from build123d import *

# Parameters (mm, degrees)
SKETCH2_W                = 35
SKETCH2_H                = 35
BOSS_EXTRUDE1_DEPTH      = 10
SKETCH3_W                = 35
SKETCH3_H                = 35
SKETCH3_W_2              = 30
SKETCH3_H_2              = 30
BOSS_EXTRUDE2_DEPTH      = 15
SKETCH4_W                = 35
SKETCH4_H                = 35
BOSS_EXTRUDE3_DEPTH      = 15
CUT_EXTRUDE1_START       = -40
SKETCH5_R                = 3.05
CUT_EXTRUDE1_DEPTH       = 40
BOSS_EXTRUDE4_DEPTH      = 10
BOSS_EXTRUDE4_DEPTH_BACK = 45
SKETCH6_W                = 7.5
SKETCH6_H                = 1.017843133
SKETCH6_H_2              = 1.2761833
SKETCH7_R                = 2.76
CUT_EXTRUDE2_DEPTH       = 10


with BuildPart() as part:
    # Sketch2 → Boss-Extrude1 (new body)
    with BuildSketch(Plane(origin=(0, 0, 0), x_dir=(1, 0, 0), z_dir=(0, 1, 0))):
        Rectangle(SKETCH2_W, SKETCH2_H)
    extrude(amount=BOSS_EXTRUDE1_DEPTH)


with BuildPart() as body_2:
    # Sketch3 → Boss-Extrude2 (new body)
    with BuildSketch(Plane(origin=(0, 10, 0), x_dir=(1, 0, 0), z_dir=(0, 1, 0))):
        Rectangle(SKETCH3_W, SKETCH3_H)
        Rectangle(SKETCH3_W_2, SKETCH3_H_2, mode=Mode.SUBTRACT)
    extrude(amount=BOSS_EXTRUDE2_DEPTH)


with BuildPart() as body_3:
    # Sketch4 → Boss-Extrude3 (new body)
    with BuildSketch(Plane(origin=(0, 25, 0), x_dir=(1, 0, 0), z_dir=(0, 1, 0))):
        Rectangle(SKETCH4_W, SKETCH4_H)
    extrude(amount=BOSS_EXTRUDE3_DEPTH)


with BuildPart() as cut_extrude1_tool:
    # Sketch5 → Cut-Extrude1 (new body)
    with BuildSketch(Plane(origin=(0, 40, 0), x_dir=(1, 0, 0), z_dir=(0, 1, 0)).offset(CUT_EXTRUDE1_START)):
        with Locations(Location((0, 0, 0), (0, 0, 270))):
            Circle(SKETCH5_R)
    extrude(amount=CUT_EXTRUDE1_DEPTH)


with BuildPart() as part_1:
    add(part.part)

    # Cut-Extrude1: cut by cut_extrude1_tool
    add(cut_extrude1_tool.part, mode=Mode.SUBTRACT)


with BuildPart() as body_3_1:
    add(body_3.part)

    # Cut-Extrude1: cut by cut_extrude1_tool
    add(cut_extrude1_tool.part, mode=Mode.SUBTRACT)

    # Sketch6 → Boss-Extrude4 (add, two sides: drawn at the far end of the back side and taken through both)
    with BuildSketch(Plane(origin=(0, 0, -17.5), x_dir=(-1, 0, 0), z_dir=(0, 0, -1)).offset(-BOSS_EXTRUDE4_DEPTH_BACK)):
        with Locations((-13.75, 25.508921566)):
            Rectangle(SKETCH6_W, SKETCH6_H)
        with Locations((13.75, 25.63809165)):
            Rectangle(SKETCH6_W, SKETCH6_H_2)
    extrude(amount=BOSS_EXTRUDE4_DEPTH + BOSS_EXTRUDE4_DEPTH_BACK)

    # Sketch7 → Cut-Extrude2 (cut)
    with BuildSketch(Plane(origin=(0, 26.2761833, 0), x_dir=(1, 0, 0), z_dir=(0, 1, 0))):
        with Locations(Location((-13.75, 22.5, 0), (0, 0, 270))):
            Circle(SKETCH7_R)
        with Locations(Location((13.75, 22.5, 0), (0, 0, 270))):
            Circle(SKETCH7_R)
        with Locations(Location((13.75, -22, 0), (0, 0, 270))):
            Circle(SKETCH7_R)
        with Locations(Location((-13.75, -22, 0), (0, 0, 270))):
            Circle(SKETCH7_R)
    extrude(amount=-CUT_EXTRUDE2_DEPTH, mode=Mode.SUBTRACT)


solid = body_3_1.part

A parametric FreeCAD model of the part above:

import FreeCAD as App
import Part
import Sketcher
from FreeCAD import Vector


def add_polygon(sketch, points):
    """Adds a closed chain of lines whose ends are joined by coincident constraints."""
    first, n = sketch.GeometryCount, len(points)
    for a, b in zip(points, points[1:] + points[:1]):
        sketch.addGeometry(Part.LineSegment(App.Vector(*a, 0), App.Vector(*b, 0)), False)
    for i in range(n):
        sketch.addConstraint(Sketcher.Constraint("Coincident", first + i, 2, first + (i + 1) % n, 1))

doc = App.newDocument("Part")
body = doc.addObject("PartDesign::Body", "Body")

sketch1 = doc.addObject("Sketcher::SketchObject", "Sketch")
body.addObject(sketch1)
sketch1.AttachmentSupport = (doc.XZ_Plane, [""])
sketch1.MapMode = "FlatFace"
add_polygon(sketch1, [(-17.5, -17.5), (-17.5, 17.5), (17.5, 17.5), (17.5, -17.5)])
sketch1.addConstraint(Sketcher.Constraint("Vertical", 0))
sketch1.addConstraint(Sketcher.Constraint("Horizontal", 1))
sketch1.addConstraint(Sketcher.Constraint("Vertical", 2))
sketch1.addConstraint(Sketcher.Constraint("Horizontal", 3))
sketch1.addConstraint(Sketcher.Constraint("Symmetric", 0, 2, 2, 2, -1, 1))
sketch1.addConstraint(Sketcher.Constraint("Equal", 3, 0))
sketch1.addConstraint(Sketcher.Constraint("DistanceX", 1, 1, 1, 2, 35.0))
pad1 = doc.addObject("PartDesign::Pad", "Pad")
body.addObject(pad1)
pad1.Profile = sketch1
pad1.Length = 10
pad1.Reversed = True
body2 = doc.addObject("PartDesign::Body", "Body001")

sketch2 = doc.addObject("Sketcher::SketchObject", "Sketch001")
body2.addObject(sketch2)
sketch2.AttachmentSupport = (doc.getObject("XZ_Plane001"), [""])
sketch2.MapMode = "FlatFace"
sketch2.AttachmentOffset = App.Placement(Vector(0, 0, -10), App.Rotation())
add_polygon(sketch2, [(-17.5, -17.5), (-17.5, 17.5), (17.5, 17.5), (17.5, -17.5)])
add_polygon(sketch2, [(15, 15), (-15, 15), (-15, -15), (15, -15)])
sketch2.addConstraint(Sketcher.Constraint("Vertical", 0))
sketch2.addConstraint(Sketcher.Constraint("Horizontal", 1))
sketch2.addConstraint(Sketcher.Constraint("Vertical", 2))
sketch2.addConstraint(Sketcher.Constraint("Horizontal", 3))
sketch2.addConstraint(Sketcher.Constraint("Horizontal", 4))
sketch2.addConstraint(Sketcher.Constraint("Vertical", 5))
sketch2.addConstraint(Sketcher.Constraint("Horizontal", 6))
sketch2.addConstraint(Sketcher.Constraint("Vertical", 7))
sketch2.addConstraint(Sketcher.Constraint("Symmetric", 0, 2, 2, 2, -1, 1))
sketch2.addConstraint(Sketcher.Constraint("Symmetric", 4, 2, 6, 2, -1, 1))
sketch2.addConstraint(Sketcher.Constraint("Equal", 3, 0))
sketch2.addConstraint(Sketcher.Constraint("Equal", 6, 5))
sketch2.addConstraint(Sketcher.Constraint("DistanceX", 1, 1, 1, 2, 35.0))
sketch2.addConstraint(Sketcher.Constraint("DistanceX", 4, 2, 4, 1, 30.0))
pad2 = doc.addObject("PartDesign::Pad", "Pad001")
body2.addObject(pad2)
pad2.Profile = sketch2
pad2.Length = 15
pad2.Reversed = True
body3 = doc.addObject("PartDesign::Body", "Body002")

sketch3 = doc.addObject("Sketcher::SketchObject", "Sketch002")
body3.addObject(sketch3)
sketch3.AttachmentSupport = (doc.getObject("XZ_Plane002"), [""])
sketch3.MapMode = "FlatFace"
sketch3.AttachmentOffset = App.Placement(Vector(0, 0, -25), App.Rotation())
add_polygon(sketch3, [(-17.5, -17.5), (-17.5, 17.5), (17.5, 17.5), (17.5, -17.5)])
sketch3.addConstraint(Sketcher.Constraint("Vertical", 0))
sketch3.addConstraint(Sketcher.Constraint("Horizontal", 1))
sketch3.addConstraint(Sketcher.Constraint("Vertical", 2))
sketch3.addConstraint(Sketcher.Constraint("Horizontal", 3))
sketch3.addConstraint(Sketcher.Constraint("Symmetric", 0, 2, 2, 2, -1, 1))
sketch3.addConstraint(Sketcher.Constraint("Equal", 3, 0))
sketch3.addConstraint(Sketcher.Constraint("DistanceX", 1, 1, 1, 2, 35.0))
pad3 = doc.addObject("PartDesign::Pad", "Pad002")
body3.addObject(pad3)
pad3.Profile = sketch3
pad3.Length = 15
pad3.Reversed = True
body4 = doc.addObject("PartDesign::Body", "Body003")

sketch4 = doc.addObject("Sketcher::SketchObject", "Sketch003")
body4.addObject(sketch4)
sketch4.AttachmentSupport = (doc.getObject("XZ_Plane003"), [""])
sketch4.MapMode = "FlatFace"
sketch4.addGeometry(Part.Circle(Vector(0, 0, 0), Vector(0, 0, 1), 3.05), False)
sketch4.addConstraint(Sketcher.Constraint("Coincident", 0, 3, -1, 1))
sketch4.addConstraint(Sketcher.Constraint("Diameter", 0, 6.1))
pad4 = doc.addObject("PartDesign::Pad", "Pad003")
body4.addObject(pad4)
pad4.Profile = sketch4
pad4.Length = 40
pad4.Reversed = True
doc.recompute()

body5 = doc.addObject("PartDesign::Body", "Body004")
body5.BaseFeature = body4
boolean = doc.addObject("PartDesign::Boolean", "Boolean")
body.addObject(boolean)
boolean.Type = "Cut"
boolean.addObjects([body5])
doc.recompute()

boolean2 = doc.addObject("PartDesign::Boolean", "Boolean001")
body3.addObject(boolean2)
boolean2.Type = "Cut"
boolean2.addObjects([body4])

sketch5 = doc.addObject("Sketcher::SketchObject", "Sketch004")
body3.addObject(sketch5)
sketch5.AttachmentSupport = (doc.getObject("XY_Plane002"), [""])
sketch5.MapMode = "FlatFace"
sketch5.AttachmentOffset = App.Placement(Vector(0, 0, -17.5), App.Rotation())
add_polygon(sketch5, [(17.5, 26.017843), (17.5, 25), (10, 25), (10, 26.017843)])
add_polygon(sketch5, [(-10, 26.276183), (-10, 25), (-17.5, 25), (-17.5, 26.276183)])
sketch5.addConstraint(Sketcher.Constraint("Vertical", 0))
sketch5.addConstraint(Sketcher.Constraint("Horizontal", 1))
sketch5.addConstraint(Sketcher.Constraint("Vertical", 2))
sketch5.addConstraint(Sketcher.Constraint("Horizontal", 3))
sketch5.addConstraint(Sketcher.Constraint("Vertical", 4))
sketch5.addConstraint(Sketcher.Constraint("Horizontal", 5))
sketch5.addConstraint(Sketcher.Constraint("Vertical", 6))
sketch5.addConstraint(Sketcher.Constraint("Horizontal", 7))
sketch5.addConstraint(Sketcher.Constraint("Symmetric", 1, 2, 4, 2, -2))
sketch5.addConstraint(Sketcher.Constraint("Equal", 3, 5))
sketch5.addConstraint(Sketcher.Constraint("DistanceX", 1, 2, 1, 1, 7.5))
sketch5.addConstraint(Sketcher.Constraint("DistanceY", -1, 1, 0, 2, 25.0))
sketch5.addConstraint(Sketcher.Constraint("DistanceX", -1, 1, 1, 2, 10.0))
sketch5.addConstraint(Sketcher.Constraint("DistanceY", 0, 2, 0, 1, 1.017843))
sketch5.addConstraint(Sketcher.Constraint("DistanceY", 4, 2, 4, 1, 1.276183))
pad5 = doc.addObject("PartDesign::Pad", "Pad004")
body3.addObject(pad5)
pad5.Profile = sketch5
pad5.Type = "TwoLengths"
pad5.Length = 10
pad5.Length2 = 45
pad5.Reversed = True

sketch6 = doc.addObject("Sketcher::SketchObject", "Sketch005")
body3.addObject(sketch6)
sketch6.AttachmentSupport = (doc.getObject("XZ_Plane002"), [""])
sketch6.MapMode = "FlatFace"
sketch6.AttachmentOffset = App.Placement(Vector(0, 0, -26.276183), App.Rotation())
sketch6.addGeometry(Part.Circle(Vector(-13.75, -22.5, 0), Vector(0, 0, 1), 2.76), False)
sketch6.addGeometry(Part.Circle(Vector(13.75, -22.5, 0), Vector(0, 0, 1), 2.76), False)
sketch6.addGeometry(Part.Circle(Vector(13.75, 22, 0), Vector(0, 0, 1), 2.76), False)
sketch6.addGeometry(Part.Circle(Vector(-13.75, 22, 0), Vector(0, 0, 1), 2.76), False)
sketch6.addConstraint(Sketcher.Constraint("Equal", 0, 1))
sketch6.addConstraint(Sketcher.Constraint("Equal", 1, 2))
sketch6.addConstraint(Sketcher.Constraint("Equal", 2, 3))
sketch6.addConstraint(Sketcher.Constraint("Symmetric", 0, 3, 1, 3, -2))
sketch6.addConstraint(Sketcher.Constraint("Symmetric", 2, 3, 3, 3, -2))
sketch6.addConstraint(Sketcher.Constraint("Vertical", 1, 3, 2, 3))
sketch6.addConstraint(Sketcher.Constraint("Diameter", 0, 5.52))
sketch6.addConstraint(Sketcher.Constraint("DistanceY", -1, 1, 2, 3, 22.0))
sketch6.addConstraint(Sketcher.Constraint("DistanceY", 0, 3, -1, 1, 22.5))
sketch6.addConstraint(Sketcher.Constraint("DistanceX", 0, 3, 1, 3, 27.5))
pocket1 = doc.addObject("PartDesign::Pocket", "Pocket")
body3.addObject(pocket1)
pocket1.Profile = sketch6
pocket1.Length = 10
pocket1.Reversed = True
body.Visibility = False
body2.Visibility = False

doc.recompute()
